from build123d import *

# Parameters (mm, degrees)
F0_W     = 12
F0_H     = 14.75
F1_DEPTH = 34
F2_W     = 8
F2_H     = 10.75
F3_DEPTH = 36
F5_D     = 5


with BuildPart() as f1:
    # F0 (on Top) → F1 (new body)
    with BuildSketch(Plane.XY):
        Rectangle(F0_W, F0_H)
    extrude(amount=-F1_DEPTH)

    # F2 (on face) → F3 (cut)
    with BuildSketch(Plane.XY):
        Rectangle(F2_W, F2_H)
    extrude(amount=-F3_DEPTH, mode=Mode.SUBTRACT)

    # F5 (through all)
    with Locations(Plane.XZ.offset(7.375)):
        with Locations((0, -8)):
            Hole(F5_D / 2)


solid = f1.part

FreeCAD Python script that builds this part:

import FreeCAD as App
import Part
import Sketcher

V = App.Vector
Q = App.Units.Quantity

doc = App.newDocument("Part")
body = doc.addObject("PartDesign::Body", "Body")

sketch1 = body.newObject("Sketcher::SketchObject", "Sketch")
sketch1.AttachmentSupport = (doc.getObject("XY_Plane"), [""])
sketch1.MapMode = "FlatFace"
sketch1.addGeometry(Part.LineSegment(V(-6, 7, 0), V(-6, -7, 0)), False)
sketch1.addGeometry(Part.LineSegment(V(-6, -7, 0), V(6, -7, 0)), False)
sketch1.addGeometry(Part.LineSegment(V(6, -7, 0), V(6, 7, 0)), False)
sketch1.addGeometry(Part.LineSegment(V(6, 7, 0), V(-6, 7, 0)), False)
sketch1.addConstraint(Sketcher.Constraint("Coincident", 0, 2, 1, 1))
sketch1.addConstraint(Sketcher.Constraint("Coincident", 1, 2, 2, 1))
sketch1.addConstraint(Sketcher.Constraint("Coincident", 2, 2, 3, 1))
sketch1.addConstraint(Sketcher.Constraint("Coincident", 3, 2, 0, 1))
sketch1.addConstraint(Sketcher.Constraint("Vertical", 0))
sketch1.addConstraint(Sketcher.Constraint("Horizontal", 1))
sketch1.addConstraint(Sketcher.Constraint("Vertical", 2))
sketch1.addConstraint(Sketcher.Constraint("Horizontal", 3))
sketch1.addConstraint(Sketcher.Constraint("Symmetric", 0, 2, 2, 2, -1, 1))
sketch1.addConstraint(Sketcher.Constraint("DistanceX", 1, 1, 1, 2, Q("12 mm")))
sketch1.addConstraint(Sketcher.Constraint("DistanceY", 0, 2, 0, 1, Q("14.75 mm")))
pad1 = body.newObject("PartDesign::Pad", "Pad")
pad1.Profile = sketch1
pad1.Length = 34
pad1.Reversed = True

sketch2 = body.newObject("Sketcher::SketchObject", "Sketch001")
sketch2.AttachmentSupport = (doc.getObject("XY_Plane"), [""])
sketch2.MapMode = "FlatFace"
sketch2.addGeometry(Part.LineSegment(V(-4, 5, 0), V(-4, -5, 0)), False)
sketch2.addGeometry(Part.LineSegment(V(-4, -5, 0), V(4, -5, 0)), False)
sketch2.addGeometry(Part.LineSegment(V(4, -5, 0), V(4, 5, 0)), False)
sketch2.addGeometry(Part.LineSegment(V(4, 5, 0), V(-4, 5, 0)), False)
sketch2.addConstraint(Sketcher.Constraint("Coincident", 0, 2, 1, 1))
sketch2.addConstraint(Sketcher.Constraint("Coincident", 1, 2, 2, 1))
sketch2.addConstraint(Sketcher.Constraint("Coincident", 2, 2, 3, 1))
sketch2.addConstraint(Sketcher.Constraint("Coincident", 3, 2, 0, 1))
sketch2.addConstraint(Sketcher.Constraint("Vertical", 0))
sketch2.addConstraint(Sketcher.Constraint("Horizontal", 1))
sketch2.addConstraint(Sketcher.Constraint("Vertical", 2))
sketch2.addConstraint(Sketcher.Constraint("Horizontal", 3))
sketch2.addConstraint(Sketcher.Constraint("Symmetric", 0, 2, 2, 2, -1, 1))
sketch2.addConstraint(Sketcher.Constraint("DistanceX", 1, 1, 1, 2, Q("8 mm")))
sketch2.addConstraint(Sketcher.Constraint("DistanceY", 0, 2, 0, 1, Q("10.75 mm")))
pocket1 = body.newObject("PartDesign::Pocket", "Pocket")
pocket1.Profile = sketch2
pocket1.Length = 36

sketch3 = body.newObject("Sketcher::SketchObject", "Sketch002")
sketch3.AttachmentSupport = (doc.getObject("XZ_Plane"), [""])
sketch3.MapMode = "FlatFace"
sketch3.AttachmentOffset = App.Placement(V(0, 0, 7.375), App.Rotation())
sketch3.addGeometry(Part.Circle(V(0, -8, 0), V(0, 0, 1), 2.5), False)
sketch3.addConstraint(Sketcher.Constraint("PointOnObject", 0, 3, -2))
sketch3.addConstraint(Sketcher.Constraint("Diameter", 0, Q("5 mm")))
sketch3.addConstraint(Sketcher.Constraint("DistanceY", 0, 3, -1, 1, Q("8 mm")))
doc.recompute()
hole = body.newObject("PartDesign::Hole", "Hole")
hole.Profile = sketch3
hole.ThreadType = "None"
hole.Diameter = 5
hole.DepthType = "ThroughAll"

doc.recompute()
